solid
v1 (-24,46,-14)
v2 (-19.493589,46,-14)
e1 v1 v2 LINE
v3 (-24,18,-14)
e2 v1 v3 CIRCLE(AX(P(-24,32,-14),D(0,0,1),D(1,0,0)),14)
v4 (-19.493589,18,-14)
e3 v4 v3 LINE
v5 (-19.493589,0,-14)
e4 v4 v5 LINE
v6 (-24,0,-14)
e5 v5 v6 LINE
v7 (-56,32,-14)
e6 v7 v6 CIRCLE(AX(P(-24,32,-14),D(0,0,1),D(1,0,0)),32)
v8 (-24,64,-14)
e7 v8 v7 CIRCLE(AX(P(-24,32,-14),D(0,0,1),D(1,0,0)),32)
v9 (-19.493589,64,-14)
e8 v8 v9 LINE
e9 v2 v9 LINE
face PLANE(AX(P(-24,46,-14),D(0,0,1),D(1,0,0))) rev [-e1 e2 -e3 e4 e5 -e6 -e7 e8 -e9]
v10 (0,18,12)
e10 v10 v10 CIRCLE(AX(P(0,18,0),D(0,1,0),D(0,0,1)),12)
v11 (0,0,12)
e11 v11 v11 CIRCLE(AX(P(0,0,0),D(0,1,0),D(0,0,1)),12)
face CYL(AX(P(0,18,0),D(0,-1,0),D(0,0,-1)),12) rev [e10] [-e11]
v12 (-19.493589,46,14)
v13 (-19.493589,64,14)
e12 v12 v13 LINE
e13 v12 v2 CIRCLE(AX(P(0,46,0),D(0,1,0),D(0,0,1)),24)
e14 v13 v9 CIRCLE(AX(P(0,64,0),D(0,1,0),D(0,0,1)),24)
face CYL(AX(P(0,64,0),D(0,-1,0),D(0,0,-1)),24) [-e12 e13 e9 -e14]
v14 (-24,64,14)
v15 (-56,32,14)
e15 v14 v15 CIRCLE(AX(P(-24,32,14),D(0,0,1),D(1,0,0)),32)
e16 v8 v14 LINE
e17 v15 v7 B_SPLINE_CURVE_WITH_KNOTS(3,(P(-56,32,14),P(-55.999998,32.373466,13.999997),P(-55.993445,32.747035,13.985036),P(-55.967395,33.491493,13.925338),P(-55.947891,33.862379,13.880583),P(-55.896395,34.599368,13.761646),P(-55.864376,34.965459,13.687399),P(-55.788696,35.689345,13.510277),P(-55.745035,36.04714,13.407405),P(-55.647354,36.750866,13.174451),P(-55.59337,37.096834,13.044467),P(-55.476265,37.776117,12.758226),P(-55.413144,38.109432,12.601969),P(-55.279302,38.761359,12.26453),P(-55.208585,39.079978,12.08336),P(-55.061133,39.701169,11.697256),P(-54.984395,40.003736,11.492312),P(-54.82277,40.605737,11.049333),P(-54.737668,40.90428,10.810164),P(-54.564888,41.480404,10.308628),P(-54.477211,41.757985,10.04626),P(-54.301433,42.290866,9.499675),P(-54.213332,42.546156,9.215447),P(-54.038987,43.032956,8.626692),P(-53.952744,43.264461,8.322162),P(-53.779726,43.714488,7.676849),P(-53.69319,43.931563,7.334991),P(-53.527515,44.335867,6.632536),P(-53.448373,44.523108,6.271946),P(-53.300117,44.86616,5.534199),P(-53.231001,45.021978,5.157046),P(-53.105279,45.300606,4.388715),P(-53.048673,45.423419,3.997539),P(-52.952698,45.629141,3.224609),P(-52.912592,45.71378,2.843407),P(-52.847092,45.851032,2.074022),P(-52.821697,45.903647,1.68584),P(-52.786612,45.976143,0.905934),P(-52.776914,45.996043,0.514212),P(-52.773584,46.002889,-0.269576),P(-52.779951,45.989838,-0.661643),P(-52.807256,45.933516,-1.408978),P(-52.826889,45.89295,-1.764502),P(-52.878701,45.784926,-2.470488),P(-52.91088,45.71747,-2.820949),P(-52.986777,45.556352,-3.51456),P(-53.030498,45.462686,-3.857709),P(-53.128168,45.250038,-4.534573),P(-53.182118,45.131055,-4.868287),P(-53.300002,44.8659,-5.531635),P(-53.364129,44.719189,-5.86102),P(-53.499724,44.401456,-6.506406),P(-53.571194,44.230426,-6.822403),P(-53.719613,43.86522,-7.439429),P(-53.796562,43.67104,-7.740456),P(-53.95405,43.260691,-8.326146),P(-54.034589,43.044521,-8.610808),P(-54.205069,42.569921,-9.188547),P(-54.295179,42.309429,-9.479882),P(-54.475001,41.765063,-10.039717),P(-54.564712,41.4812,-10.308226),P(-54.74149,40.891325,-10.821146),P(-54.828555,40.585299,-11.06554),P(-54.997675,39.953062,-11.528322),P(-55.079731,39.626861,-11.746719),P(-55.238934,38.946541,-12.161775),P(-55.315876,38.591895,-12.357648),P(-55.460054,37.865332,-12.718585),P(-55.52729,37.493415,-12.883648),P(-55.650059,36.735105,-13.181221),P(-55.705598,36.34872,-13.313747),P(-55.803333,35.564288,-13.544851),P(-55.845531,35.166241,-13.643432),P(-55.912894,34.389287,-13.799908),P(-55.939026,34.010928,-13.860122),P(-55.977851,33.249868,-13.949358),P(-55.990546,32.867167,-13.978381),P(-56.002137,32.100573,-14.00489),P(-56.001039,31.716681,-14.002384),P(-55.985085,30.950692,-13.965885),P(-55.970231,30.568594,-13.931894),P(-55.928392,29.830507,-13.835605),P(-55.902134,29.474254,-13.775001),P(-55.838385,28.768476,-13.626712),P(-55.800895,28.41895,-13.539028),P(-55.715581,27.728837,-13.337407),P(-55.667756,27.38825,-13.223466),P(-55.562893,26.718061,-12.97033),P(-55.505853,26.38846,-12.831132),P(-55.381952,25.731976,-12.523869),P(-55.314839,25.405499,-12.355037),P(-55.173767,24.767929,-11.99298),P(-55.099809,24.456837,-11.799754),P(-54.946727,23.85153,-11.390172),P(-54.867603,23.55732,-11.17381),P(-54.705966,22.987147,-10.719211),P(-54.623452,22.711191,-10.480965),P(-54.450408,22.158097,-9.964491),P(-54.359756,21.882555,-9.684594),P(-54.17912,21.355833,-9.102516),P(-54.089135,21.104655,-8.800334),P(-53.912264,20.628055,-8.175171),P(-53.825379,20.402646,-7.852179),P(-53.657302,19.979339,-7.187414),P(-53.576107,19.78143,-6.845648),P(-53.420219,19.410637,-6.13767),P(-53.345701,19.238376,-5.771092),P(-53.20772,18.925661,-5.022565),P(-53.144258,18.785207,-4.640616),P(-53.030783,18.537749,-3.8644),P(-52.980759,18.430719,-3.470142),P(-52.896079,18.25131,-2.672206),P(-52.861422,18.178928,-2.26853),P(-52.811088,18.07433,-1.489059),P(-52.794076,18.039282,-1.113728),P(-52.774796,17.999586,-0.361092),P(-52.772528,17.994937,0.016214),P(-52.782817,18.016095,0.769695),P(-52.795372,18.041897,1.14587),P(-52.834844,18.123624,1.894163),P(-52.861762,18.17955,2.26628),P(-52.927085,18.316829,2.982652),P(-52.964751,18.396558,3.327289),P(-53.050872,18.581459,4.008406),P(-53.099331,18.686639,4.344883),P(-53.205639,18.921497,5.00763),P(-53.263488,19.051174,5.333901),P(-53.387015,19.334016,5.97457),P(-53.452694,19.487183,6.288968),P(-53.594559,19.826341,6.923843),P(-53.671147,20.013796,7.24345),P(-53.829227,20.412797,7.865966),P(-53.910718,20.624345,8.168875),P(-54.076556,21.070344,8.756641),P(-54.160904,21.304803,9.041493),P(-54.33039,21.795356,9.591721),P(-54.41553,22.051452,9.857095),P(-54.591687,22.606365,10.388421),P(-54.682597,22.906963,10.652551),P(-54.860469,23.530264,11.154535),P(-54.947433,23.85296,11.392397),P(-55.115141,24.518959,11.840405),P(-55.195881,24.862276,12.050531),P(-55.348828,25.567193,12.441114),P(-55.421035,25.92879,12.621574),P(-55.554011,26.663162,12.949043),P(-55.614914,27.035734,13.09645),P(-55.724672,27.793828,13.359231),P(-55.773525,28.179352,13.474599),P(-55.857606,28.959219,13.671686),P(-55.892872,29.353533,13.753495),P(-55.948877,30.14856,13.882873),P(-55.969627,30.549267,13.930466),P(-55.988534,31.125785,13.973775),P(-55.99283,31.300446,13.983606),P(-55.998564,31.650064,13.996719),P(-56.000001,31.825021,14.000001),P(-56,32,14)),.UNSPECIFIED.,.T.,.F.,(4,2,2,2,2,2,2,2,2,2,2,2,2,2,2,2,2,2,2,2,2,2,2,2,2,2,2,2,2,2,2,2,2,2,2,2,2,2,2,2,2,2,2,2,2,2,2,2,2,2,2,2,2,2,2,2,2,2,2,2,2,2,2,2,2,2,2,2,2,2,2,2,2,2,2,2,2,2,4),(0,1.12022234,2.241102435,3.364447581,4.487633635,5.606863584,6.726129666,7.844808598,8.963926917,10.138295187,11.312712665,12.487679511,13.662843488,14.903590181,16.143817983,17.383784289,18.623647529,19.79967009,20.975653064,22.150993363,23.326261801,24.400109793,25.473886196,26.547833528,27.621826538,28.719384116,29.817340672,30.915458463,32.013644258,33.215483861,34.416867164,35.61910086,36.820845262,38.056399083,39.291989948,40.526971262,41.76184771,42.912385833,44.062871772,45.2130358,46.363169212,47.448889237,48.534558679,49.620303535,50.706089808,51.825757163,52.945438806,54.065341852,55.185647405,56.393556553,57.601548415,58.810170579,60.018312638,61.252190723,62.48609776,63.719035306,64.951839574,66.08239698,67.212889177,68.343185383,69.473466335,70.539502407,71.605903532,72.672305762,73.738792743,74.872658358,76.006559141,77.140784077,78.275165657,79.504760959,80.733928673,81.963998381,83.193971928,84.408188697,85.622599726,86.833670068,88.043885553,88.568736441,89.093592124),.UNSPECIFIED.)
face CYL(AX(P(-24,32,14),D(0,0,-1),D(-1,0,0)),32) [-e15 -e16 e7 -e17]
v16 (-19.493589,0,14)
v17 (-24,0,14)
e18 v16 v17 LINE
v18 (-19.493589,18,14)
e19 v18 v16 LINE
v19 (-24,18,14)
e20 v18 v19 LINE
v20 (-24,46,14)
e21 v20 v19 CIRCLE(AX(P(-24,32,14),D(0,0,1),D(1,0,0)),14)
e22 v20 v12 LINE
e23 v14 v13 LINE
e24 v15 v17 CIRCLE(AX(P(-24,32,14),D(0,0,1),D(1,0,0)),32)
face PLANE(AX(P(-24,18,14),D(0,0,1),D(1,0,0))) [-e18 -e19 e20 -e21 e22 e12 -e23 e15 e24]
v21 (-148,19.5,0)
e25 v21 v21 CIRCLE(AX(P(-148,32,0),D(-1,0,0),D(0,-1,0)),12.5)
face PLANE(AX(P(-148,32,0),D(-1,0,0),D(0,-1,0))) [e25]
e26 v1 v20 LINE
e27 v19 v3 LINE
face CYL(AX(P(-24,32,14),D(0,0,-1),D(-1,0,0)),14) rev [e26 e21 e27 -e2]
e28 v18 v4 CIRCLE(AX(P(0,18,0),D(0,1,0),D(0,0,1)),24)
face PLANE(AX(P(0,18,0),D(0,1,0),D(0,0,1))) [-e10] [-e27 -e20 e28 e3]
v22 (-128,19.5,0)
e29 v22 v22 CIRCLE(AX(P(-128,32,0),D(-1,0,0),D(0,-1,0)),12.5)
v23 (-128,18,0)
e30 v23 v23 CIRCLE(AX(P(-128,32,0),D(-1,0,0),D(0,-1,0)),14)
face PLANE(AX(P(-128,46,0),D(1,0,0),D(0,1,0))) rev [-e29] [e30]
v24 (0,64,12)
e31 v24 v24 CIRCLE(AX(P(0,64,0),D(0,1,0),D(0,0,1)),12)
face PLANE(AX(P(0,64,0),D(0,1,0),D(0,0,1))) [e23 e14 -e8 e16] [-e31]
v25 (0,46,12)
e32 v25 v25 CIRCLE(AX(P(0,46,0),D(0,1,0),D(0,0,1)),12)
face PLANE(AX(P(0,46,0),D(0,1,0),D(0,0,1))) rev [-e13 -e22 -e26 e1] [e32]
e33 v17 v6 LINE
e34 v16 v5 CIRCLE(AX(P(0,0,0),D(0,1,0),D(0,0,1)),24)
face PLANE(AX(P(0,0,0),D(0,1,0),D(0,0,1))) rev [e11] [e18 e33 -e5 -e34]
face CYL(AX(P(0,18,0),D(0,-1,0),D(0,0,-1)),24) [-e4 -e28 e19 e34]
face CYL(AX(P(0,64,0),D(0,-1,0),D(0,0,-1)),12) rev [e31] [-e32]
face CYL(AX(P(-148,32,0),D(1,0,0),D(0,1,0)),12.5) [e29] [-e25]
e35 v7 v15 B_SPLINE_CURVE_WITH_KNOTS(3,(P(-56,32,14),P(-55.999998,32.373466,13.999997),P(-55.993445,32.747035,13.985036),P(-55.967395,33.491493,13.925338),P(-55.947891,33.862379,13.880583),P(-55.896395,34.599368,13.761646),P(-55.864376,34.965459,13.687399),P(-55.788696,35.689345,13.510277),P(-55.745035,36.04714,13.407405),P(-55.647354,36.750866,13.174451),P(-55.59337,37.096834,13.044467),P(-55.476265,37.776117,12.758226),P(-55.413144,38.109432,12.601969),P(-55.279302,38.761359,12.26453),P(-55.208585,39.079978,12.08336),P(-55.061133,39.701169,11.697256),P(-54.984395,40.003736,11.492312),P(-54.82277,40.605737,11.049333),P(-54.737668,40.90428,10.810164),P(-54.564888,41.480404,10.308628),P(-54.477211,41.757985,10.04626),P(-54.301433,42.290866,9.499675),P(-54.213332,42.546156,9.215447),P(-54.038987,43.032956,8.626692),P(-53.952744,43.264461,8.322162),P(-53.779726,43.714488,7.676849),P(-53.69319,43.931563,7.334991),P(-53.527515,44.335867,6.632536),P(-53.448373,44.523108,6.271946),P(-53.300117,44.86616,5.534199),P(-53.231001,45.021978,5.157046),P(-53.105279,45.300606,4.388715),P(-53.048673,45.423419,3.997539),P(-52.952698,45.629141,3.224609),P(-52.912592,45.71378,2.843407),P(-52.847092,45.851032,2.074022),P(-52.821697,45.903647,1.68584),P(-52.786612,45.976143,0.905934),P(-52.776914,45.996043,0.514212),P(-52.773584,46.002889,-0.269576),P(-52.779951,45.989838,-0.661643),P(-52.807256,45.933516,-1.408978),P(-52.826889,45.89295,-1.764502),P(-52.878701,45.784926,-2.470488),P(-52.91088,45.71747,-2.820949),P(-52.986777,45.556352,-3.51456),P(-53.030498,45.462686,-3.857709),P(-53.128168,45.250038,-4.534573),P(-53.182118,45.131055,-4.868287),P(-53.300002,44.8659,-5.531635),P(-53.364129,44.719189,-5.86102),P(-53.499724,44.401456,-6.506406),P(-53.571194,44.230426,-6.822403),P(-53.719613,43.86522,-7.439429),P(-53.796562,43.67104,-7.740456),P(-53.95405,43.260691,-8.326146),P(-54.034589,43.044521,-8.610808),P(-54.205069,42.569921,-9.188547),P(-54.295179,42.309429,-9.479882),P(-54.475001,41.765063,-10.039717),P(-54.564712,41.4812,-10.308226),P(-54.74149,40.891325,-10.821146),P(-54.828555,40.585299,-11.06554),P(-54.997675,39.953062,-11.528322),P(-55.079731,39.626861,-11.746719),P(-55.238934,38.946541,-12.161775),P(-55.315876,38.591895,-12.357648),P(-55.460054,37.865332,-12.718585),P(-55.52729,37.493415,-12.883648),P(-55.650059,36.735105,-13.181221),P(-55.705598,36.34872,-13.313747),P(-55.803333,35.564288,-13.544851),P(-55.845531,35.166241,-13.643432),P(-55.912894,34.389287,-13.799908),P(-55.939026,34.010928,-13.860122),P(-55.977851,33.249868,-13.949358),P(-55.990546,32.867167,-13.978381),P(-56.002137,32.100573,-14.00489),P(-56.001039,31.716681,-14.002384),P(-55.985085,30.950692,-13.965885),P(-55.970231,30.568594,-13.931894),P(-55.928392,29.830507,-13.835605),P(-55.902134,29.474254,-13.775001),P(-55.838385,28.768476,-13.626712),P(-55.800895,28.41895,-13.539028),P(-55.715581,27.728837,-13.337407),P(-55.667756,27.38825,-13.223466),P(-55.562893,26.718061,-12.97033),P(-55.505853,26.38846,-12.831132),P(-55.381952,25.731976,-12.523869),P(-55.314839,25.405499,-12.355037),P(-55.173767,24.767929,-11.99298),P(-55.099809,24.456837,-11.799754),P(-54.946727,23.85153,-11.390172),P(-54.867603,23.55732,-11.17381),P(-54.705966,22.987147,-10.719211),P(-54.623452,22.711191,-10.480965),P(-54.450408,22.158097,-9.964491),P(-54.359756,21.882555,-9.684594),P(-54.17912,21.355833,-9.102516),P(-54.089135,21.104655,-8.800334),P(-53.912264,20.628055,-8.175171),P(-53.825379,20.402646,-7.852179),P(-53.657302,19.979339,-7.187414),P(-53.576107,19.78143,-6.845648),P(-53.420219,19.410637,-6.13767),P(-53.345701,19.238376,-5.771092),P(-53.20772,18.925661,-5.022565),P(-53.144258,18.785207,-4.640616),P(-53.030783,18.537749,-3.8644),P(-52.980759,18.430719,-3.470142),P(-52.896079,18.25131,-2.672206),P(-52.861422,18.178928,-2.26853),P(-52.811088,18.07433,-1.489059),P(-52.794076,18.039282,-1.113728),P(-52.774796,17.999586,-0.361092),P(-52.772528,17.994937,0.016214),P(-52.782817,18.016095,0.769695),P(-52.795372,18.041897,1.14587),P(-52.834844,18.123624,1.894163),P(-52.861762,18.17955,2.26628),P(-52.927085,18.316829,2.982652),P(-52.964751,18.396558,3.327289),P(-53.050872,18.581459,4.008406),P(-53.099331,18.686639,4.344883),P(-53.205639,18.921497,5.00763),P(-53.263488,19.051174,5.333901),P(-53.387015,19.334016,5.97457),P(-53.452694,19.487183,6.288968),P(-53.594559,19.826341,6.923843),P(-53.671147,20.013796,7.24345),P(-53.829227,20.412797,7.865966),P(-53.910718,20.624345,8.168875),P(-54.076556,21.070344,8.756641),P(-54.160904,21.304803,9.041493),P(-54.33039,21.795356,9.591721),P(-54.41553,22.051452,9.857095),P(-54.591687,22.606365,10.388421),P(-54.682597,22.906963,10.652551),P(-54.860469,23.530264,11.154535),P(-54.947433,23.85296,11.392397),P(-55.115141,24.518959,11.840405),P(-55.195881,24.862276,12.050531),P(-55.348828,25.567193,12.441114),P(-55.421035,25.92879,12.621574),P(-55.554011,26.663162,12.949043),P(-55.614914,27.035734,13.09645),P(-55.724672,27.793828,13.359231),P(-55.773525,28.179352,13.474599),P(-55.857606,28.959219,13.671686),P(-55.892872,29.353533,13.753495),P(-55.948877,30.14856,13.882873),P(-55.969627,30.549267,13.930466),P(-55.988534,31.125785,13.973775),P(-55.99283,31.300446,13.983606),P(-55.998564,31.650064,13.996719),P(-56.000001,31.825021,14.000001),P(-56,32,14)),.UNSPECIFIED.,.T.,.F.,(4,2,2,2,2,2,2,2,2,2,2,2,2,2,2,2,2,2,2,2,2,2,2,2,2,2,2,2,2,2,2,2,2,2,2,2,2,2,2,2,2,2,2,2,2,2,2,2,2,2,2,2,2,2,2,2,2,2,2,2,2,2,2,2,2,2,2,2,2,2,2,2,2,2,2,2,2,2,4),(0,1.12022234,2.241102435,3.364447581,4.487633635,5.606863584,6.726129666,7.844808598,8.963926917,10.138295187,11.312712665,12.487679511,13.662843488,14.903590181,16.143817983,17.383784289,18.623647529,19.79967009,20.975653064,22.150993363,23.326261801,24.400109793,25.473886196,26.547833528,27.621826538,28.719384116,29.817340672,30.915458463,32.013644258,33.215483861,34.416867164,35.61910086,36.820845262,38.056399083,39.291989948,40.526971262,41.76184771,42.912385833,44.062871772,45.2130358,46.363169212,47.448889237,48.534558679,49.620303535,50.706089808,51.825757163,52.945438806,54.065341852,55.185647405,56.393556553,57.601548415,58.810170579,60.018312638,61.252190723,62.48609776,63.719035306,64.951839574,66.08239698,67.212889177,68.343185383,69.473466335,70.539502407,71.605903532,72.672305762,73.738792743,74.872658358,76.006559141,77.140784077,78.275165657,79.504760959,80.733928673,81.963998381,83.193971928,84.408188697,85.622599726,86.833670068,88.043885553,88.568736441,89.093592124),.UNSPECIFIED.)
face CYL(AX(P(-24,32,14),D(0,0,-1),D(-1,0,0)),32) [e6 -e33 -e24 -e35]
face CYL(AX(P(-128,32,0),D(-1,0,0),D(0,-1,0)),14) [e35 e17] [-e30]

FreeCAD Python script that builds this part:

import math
import FreeCAD as App
import Part
import Sketcher

V = App.Vector
Q = App.Units.Quantity

doc = App.newDocument("Part")
body = doc.addObject("PartDesign::Body", "Body")

sketch1 = doc.addObject("Sketcher::SketchObject", "Sketch")
body.addObject(sketch1)
sketch1.AttachmentSupport = (doc.XZ_Plane, [""])
sketch1.MapMode = "FlatFace"
sketch1.addGeometry(Part.Circle(V(0, 0, 0), V(0, 0, 1), 24), False)
sketch1.addGeometry(Part.Circle(V(0, 0, 0), V(0, 0, 1), 12), False)
sketch1.addConstraint(Sketcher.Constraint("Coincident", 0, 3, -1, 1))
sketch1.addConstraint(Sketcher.Constraint("Coincident", 1, 3, -1, 1))
sketch1.addConstraint(Sketcher.Constraint("Diameter", 0, Q("48 mm")))
sketch1.addConstraint(Sketcher.Constraint("Diameter", 1, Q("24 mm")))
pad1 = doc.addObject("PartDesign::Pad", "Pad")
body.addObject(pad1)
pad1.Profile = sketch1
pad1.Length = 18
pad1.Reversed = True
body2 = doc.addObject("PartDesign::Body", "Body001")

sketch2 = doc.addObject("Sketcher::SketchObject", "Sketch001")
body2.addObject(sketch2)
sketch2.AttachmentSupport = (doc.getObject("XZ_Plane001"), [""])
sketch2.MapMode = "FlatFace"
sketch2.AttachmentOffset = App.Placement(V(0, 0, -46), App.Rotation())
sketch2.addGeometry(Part.Circle(V(0, 0, 0), V(0, 0, 1), 24), False)
sketch2.addGeometry(Part.Circle(V(0, 0, 0), V(0, 0, 1), 12), False)
sketch2.addConstraint(Sketcher.Constraint("Coincident", 0, 3, -1, 1))
sketch2.addConstraint(Sketcher.Constraint("Coincident", 1, 3, -1, 1))
sketch2.addConstraint(Sketcher.Constraint("Diameter", 0, Q("48 mm")))
sketch2.addConstraint(Sketcher.Constraint("Diameter", 1, Q("24 mm")))
pad2 = doc.addObject("PartDesign::Pad", "Pad001")
body2.addObject(pad2)
pad2.Profile = sketch2
pad2.Length = 18
pad2.Reversed = True
body3 = doc.addObject("PartDesign::Body", "Body002")

sketch3 = doc.addObject("Sketcher::SketchObject", "Sketch002")
body3.addObject(sketch3)
sketch3.AttachmentSupport = (doc.getObject("XY_Plane002"), [""])
sketch3.MapMode = "FlatFace"
sketch3.addGeometry(Part.LineSegment(V(-24, 46, 0), V(-24, 64, 0)), False)
sketch3.addGeometry(Part.ArcOfCircle(Part.Circle(V(-24, 32, 0), V(0, 0, 1), 32), math.radians(90), math.radians(270)), False)
sketch3.addGeometry(Part.LineSegment(V(-24, 0, 0), V(-24, 18, 0)), False)
sketch3.addGeometry(Part.ArcOfCircle(Part.Circle(V(-24, 32, 0), V(0, 0, 1), 14), math.radians(90), math.radians(270)), False)
sketch3.addConstraint(Sketcher.Constraint("Coincident", 0, 2, 1, 1))
sketch3.addConstraint(Sketcher.Constraint("Coincident", 1, 2, 2, 1))
sketch3.addConstraint(Sketcher.Constraint("Coincident", 2, 2, 3, 2))
sketch3.addConstraint(Sketcher.Constraint("Coincident", 3, 1, 0, 1))
sketch3.addConstraint(Sketcher.Constraint("Vertical", 0))
sketch3.addConstraint(Sketcher.Constraint("Vertical", 2))
sketch3.addConstraint(Sketcher.Constraint("Coincident", 3, 3, 1, 3))
sketch3.addConstraint(Sketcher.Constraint("PointOnObject", 1, 2, -1))
sketch3.addConstraint(Sketcher.Constraint("Vertical", 3, 3, 0, 2))
sketch3.addConstraint(Sketcher.Constraint("Vertical", 0, 2, 1, 2))
sketch3.addConstraint(Sketcher.Constraint("Radius", 1, Q("32 mm")))
sketch3.addConstraint(Sketcher.Constraint("Radius", 3, Q("14 mm")))
sketch3.addConstraint(Sketcher.Constraint("DistanceX", 1, 3, -1, 1, Q("24 mm")))
pad3 = doc.addObject("PartDesign::Pad", "Pad002")
body3.addObject(pad3)
pad3.Profile = sketch3
pad3.Length = 28
pad3.Midplane = True

sketch4 = doc.addObject("Sketcher::SketchObject", "Sketch003")
body3.addObject(sketch4)
sketch4.AttachmentSupport = (doc.getObject("XY_Plane002"), [""])
sketch4.MapMode = "FlatFace"
sketch4.addGeometry(Part.LineSegment(V(-53, 46, 0), V(-128, 46, 0)), False)
sketch4.addGeometry(Part.LineSegment(V(-128, 46, 0), V(-128, 32, 0)), False)
sketch4.addGeometry(Part.LineSegment(V(-128, 32, 0), V(-56, 32, 0)), False)
sketch4.addGeometry(Part.ArcOfCircle(Part.Circle(V(-24, 32, 0), V(0, 0, 1), 32), math.radians(154), math.radians(180)), False)
sketch4.addGeometry(Part.LineSegment(V(-128, 32, 0), V(-24, 32, 0)), True)
sketch4.addConstraint(Sketcher.Constraint("Coincident", 0, 2, 1, 1))
sketch4.addConstraint(Sketcher.Constraint("Coincident", 1, 2, 2, 1))
sketch4.addConstraint(Sketcher.Constraint("Coincident", 2, 2, 3, 2))
sketch4.addConstraint(Sketcher.Constraint("Coincident", 3, 1, 0, 1))
sketch4.addConstraint(Sketcher.Constraint("Horizontal", 0))
sketch4.addConstraint(Sketcher.Constraint("Vertical", 1))
sketch4.addConstraint(Sketcher.Constraint("Horizontal", 2))
sketch4.addConstraint(Sketcher.Constraint("Horizontal", 4))
sketch4.addConstraint(Sketcher.Constraint("Coincident", 4, 1, 1, 2))
sketch4.addConstraint(Sketcher.Constraint("Coincident", 4, 2, 3, 3))
sketch4.addConstraint(Sketcher.Constraint("Radius", 3, Q("32 mm")))
sketch4.addConstraint(Sketcher.Constraint("DistanceX", 2, 1, 2, 2, Q("72 mm")))
sketch4.addConstraint(Sketcher.Constraint("DistanceY", 1, 2, 1, 1, Q("14 mm")))
sketch4.addConstraint(Sketcher.Constraint("DistanceX", 3, 3, -1, 1, Q("24 mm")))
sketch4.addConstraint(Sketcher.Constraint("DistanceY", -1, 1, 3, 3, Q("32 mm")))
revolution = doc.addObject("PartDesign::Revolution", "Revolution")
body3.addObject(revolution)
revolution.Profile = sketch4
revolution.ReferenceAxis = (sketch4, ["Axis0"])
revolution.Angle = 360

sketch5 = doc.addObject("Sketcher::SketchObject", "Sketch004")
body3.addObject(sketch5)
sketch5.AttachmentSupport = (doc.getObject("YZ_Plane002"), [""])
sketch5.MapMode = "FlatFace"
sketch5.AttachmentOffset = App.Placement(V(0, 0, -128), App.Rotation())
sketch5.addGeometry(Part.Circle(V(32, 0, 0), V(0, 0, 1), 12), False)
sketch5.addConstraint(Sketcher.Constraint("PointOnObject", 0, 3, -1))
sketch5.addConstraint(Sketcher.Constraint("Diameter", 0, Q("25 mm")))
sketch5.addConstraint(Sketcher.Constraint("DistanceX", -1, 1, 0, 3, Q("32 mm")))
pad4 = doc.addObject("PartDesign::Pad", "Pad003")
body3.addObject(pad4)
pad4.Profile = sketch5
pad4.Length = 20
pad4.Reversed = True
body2.AllowCompound = True
doc.recompute()

boolean = doc.addObject("PartDesign::Boolean", "Boolean")
body2.addObject(boolean)
boolean.Type = "Fuse"
boolean.addObjects([body3])

sketch6 = doc.addObject("Sketcher::SketchObject", "Sketch005")
body2.addObject(sketch6)
sketch6.AttachmentSupport = (doc.getObject("XZ_Plane001"), [""])
sketch6.MapMode = "FlatFace"
sketch6.AttachmentOffset = App.Placement(V(0, 0, -46), App.Rotation())
sketch6.addGeometry(Part.LineSegment(V(-19.5, -14, 0), V(-24, -14, 0)), False)
sketch6.addGeometry(Part.LineSegment(V(-24, -14, 0), V(-24, 0, 0)), False)
sketch6.addGeometry(Part.ArcOfCircle(Part.Circle(V(0, 0, 0), V(0, 0, 1), 24), math.radians(180), math.radians(216)), False)
sketch6.addConstraint(Sketcher.Constraint("Coincident", 0, 2, 1, 1))
sketch6.addConstraint(Sketcher.Constraint("Tangent", 1, 2, 2, 1))
sketch6.addConstraint(Sketcher.Constraint("Coincident", 2, 2, 0, 1))
sketch6.addConstraint(Sketcher.Constraint("Horizontal", 0))
sketch6.addConstraint(Sketcher.Constraint("Vertical", 1))
sketch6.addConstraint(Sketcher.Constraint("Coincident", 2, 3, -1, 1))
sketch6.addConstraint(Sketcher.Constraint("Radius", 2, Q("24 mm")))
sketch6.addConstraint(Sketcher.Constraint("DistanceY", 1, 1, 1, 2, Q("14 mm")))
pad5 = doc.addObject("PartDesign::Pad", "Pad004")
body2.addObject(pad5)
pad5.Profile = sketch6
pad5.Length = 18
pad5.Reversed = True
doc.recompute()

mirrored = doc.addObject("PartDesign::Mirrored", "Mirrored")
body2.addObject(mirrored)
mirrored.Originals = [pad5]
mirrored.MirrorPlane = (doc.getObject("XY_Plane001"), [""])
body2.Tip = mirrored
body.AllowCompound = True
doc.recompute()

boolean2 = doc.addObject("PartDesign::Boolean", "Boolean001")
body.addObject(boolean2)
boolean2.Type = "Fuse"
boolean2.addObjects([body2])

sketch7 = doc.addObject("Sketcher::SketchObject", "Sketch006")
body.addObject(sketch7)
sketch7.AttachmentSupport = (doc.XZ_Plane, [""])
sketch7.MapMode = "FlatFace"
sketch7.addGeometry(Part.LineSegment(V(-19.5, 14, 0), V(-24, 14, 0)), False)
sketch7.addGeometry(Part.LineSegment(V(-24, 14, 0), V(-24, 0, 0)), False)
sketch7.addGeometry(Part.ArcOfCircle(Part.Circle(V(0, 0, 0), V(0, 0, 1), 24), math.radians(144), math.radians(180)), False)
sketch7.addConstraint(Sketcher.Constraint("Coincident", 0, 2, 1, 1))
sketch7.addConstraint(Sketcher.Constraint("Tangent", 1, 2, 2, 2))
sketch7.addConstraint(Sketcher.Constraint("Coincident", 2, 1, 0, 1))
sketch7.addConstraint(Sketcher.Constraint("Horizontal", 0))
sketch7.addConstraint(Sketcher.Constraint("Vertical", 1))
sketch7.addConstraint(Sketcher.Constraint("Coincident", 2, 3, -1, 1))
sketch7.addConstraint(Sketcher.Constraint("Radius", 2, Q("24 mm")))
sketch7.addConstraint(Sketcher.Constraint("DistanceY", 1, 2, 1, 1, Q("14 mm")))
pad6 = doc.addObject("PartDesign::Pad", "Pad005")
body.addObject(pad6)
pad6.Profile = sketch7
pad6.Length = 18
pad6.Reversed = True
doc.recompute()

mirrored2 = doc.addObject("PartDesign::Mirrored", "Mirrored001")
body.addObject(mirrored2)
mirrored2.Originals = [pad6]
mirrored2.MirrorPlane = (doc.XY_Plane, [""])
body.Tip = mirrored2

doc.recompute()
